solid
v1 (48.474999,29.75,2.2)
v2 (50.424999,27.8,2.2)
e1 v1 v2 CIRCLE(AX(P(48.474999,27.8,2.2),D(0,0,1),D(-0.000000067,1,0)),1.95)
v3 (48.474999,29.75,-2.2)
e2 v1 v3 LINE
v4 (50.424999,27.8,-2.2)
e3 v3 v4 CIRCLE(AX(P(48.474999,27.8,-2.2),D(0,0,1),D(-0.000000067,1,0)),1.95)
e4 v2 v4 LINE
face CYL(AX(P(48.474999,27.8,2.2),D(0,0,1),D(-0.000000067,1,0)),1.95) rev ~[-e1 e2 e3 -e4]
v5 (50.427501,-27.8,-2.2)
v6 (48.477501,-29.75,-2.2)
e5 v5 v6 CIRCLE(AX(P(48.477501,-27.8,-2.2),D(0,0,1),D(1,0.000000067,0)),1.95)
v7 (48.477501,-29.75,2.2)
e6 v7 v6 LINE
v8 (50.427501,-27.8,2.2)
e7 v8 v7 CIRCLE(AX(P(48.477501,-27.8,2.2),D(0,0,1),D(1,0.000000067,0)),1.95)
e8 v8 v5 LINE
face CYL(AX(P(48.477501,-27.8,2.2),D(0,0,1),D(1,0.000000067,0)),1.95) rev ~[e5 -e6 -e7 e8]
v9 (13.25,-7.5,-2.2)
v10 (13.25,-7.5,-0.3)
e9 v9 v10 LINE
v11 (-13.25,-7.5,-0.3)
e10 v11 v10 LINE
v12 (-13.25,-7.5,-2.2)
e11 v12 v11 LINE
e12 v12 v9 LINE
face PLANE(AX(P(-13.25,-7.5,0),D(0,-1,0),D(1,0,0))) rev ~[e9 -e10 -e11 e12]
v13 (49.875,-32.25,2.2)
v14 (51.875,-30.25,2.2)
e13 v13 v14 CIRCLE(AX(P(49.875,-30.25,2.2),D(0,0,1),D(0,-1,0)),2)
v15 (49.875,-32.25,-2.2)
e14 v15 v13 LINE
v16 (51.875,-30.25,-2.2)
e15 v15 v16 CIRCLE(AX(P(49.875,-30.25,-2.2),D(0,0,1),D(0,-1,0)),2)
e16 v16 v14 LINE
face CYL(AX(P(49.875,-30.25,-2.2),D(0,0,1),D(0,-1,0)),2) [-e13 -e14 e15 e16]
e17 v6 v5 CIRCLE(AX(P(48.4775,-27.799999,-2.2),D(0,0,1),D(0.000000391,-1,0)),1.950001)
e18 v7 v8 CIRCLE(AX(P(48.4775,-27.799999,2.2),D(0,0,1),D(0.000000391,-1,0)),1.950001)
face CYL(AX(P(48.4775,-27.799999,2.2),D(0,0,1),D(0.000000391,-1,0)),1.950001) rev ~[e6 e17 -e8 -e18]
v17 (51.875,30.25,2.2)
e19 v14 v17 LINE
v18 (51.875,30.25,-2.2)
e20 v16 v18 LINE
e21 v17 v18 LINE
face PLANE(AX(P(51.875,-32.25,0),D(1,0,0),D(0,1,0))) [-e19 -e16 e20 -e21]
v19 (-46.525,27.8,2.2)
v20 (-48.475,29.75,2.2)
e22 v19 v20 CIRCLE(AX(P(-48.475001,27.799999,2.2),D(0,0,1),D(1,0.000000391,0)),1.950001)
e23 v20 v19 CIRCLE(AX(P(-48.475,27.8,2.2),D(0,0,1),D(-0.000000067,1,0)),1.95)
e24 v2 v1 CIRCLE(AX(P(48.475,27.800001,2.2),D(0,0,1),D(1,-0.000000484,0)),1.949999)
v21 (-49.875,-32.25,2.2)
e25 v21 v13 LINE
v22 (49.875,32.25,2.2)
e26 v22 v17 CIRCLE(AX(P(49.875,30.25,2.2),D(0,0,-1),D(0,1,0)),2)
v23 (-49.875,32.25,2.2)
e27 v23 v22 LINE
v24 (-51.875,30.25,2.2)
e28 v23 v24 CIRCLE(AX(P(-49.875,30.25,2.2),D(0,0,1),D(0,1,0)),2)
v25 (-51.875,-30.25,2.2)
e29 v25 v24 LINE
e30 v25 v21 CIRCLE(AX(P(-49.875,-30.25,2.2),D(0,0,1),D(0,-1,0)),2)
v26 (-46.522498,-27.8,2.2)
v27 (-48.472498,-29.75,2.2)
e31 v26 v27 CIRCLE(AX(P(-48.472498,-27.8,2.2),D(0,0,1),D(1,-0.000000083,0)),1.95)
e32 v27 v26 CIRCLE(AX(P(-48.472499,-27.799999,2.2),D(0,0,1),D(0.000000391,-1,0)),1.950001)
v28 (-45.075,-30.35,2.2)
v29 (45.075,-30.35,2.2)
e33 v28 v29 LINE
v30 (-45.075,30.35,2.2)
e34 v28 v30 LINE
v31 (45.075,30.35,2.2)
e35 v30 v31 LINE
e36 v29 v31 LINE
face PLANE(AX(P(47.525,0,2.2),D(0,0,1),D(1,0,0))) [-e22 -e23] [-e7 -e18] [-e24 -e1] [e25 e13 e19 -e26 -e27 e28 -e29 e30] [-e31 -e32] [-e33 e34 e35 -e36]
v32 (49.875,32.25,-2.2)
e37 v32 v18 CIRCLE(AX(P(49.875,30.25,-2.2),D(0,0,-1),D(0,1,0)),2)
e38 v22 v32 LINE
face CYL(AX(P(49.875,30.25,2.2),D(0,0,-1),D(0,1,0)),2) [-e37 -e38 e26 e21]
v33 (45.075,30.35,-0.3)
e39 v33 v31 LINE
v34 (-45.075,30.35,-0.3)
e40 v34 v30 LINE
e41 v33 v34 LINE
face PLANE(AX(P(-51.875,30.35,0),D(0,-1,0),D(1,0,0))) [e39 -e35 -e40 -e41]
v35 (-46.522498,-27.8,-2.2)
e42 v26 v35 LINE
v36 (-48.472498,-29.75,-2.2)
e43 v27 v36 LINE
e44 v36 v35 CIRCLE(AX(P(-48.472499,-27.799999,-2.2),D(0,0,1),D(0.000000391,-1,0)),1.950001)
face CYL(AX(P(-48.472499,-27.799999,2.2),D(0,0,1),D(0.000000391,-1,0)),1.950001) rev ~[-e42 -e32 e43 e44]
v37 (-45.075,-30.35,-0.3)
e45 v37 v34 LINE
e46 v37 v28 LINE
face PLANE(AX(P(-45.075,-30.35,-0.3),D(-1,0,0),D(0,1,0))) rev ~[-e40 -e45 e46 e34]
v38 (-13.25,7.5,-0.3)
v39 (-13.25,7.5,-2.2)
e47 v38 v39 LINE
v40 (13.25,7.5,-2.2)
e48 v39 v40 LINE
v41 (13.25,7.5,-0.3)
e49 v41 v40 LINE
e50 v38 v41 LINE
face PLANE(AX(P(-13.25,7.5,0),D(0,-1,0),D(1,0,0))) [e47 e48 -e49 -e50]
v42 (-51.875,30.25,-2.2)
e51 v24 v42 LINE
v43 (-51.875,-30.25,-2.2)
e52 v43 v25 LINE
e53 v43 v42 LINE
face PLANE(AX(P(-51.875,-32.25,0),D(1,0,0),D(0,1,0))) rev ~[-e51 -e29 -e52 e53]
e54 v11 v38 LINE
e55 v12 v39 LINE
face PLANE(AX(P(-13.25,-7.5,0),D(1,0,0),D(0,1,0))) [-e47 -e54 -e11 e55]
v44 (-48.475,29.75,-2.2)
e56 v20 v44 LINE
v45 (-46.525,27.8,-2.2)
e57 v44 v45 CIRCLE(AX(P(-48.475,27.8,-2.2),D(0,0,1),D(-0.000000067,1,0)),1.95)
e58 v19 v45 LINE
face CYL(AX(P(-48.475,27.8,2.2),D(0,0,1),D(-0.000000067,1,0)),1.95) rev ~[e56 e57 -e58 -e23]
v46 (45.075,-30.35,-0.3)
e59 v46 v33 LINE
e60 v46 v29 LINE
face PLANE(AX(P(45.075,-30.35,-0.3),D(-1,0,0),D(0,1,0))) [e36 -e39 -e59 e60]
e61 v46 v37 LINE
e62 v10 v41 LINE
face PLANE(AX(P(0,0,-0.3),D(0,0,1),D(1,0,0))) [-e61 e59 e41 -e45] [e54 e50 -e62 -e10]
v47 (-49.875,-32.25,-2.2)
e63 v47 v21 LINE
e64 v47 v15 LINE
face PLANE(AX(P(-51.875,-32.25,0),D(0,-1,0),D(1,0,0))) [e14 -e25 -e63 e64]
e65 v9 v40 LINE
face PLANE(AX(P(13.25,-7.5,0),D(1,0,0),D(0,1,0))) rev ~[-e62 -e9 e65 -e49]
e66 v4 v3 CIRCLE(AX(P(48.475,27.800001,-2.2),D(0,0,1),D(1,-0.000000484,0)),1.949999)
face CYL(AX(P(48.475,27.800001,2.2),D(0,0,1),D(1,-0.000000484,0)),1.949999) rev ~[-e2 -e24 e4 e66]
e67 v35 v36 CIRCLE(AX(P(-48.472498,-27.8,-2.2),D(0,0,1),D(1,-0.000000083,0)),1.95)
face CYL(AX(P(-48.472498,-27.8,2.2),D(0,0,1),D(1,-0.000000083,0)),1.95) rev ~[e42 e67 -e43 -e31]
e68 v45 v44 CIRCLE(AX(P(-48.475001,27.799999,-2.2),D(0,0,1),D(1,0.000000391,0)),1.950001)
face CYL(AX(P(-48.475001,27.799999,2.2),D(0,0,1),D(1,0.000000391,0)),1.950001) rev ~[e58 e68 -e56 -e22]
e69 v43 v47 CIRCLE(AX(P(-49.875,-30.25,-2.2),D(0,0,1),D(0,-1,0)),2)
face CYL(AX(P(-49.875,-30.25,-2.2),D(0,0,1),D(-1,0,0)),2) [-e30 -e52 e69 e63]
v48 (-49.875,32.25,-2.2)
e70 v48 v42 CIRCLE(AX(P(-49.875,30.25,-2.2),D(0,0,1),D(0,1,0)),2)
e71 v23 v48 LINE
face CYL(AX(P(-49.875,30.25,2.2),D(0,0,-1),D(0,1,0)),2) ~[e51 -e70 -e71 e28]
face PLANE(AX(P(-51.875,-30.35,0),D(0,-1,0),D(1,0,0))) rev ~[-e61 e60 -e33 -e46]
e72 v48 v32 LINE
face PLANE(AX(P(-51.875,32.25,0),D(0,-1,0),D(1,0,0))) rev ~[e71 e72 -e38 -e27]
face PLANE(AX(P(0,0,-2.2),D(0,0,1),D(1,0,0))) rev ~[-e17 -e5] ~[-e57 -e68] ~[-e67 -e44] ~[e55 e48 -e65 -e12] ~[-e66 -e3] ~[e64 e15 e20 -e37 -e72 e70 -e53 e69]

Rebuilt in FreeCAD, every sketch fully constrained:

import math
import FreeCAD as App
import Part
import Sketcher

V = App.Vector


def edges_at(feature, points):
    """Names of the edges that pass closest to the given points."""
    edges = feature.Shape.Edges
    near = lambda p: min(range(len(edges)), key=lambda i: edges[i].distToShape(Part.Vertex(*p))[0])
    return sorted({f"Edge{near(p) + 1}" for p in points})


def faces_at(feature, points):
    """Names of the faces that lie closest to the given points."""
    faces = feature.Shape.Faces
    near = lambda p: min(range(len(faces)), key=lambda i: faces[i].distToShape(Part.Vertex(*p))[0])
    return sorted({f"Face{near(p) + 1}" for p in points})


def add_polygon(sketch, points):
    """Adds a closed chain of lines whose ends are joined by coincident constraints."""
    first, n = sketch.GeometryCount, len(points)
    for a, b in zip(points, points[1:] + points[:1]):
        sketch.addGeometry(Part.LineSegment(App.Vector(*a, 0), App.Vector(*b, 0)), False)
    for i in range(n):
        sketch.addConstraint(Sketcher.Constraint("Coincident", first + i, 2, first + (i + 1) % n, 1))

doc = App.newDocument("Part")
body = doc.addObject("PartDesign::Body", "Body")

# Sketch on XY plane
sketch1 = body.newObject("Sketcher::SketchObject", "Sketch")
sketch1.AttachmentSupport = (doc.getObject("XY_Plane"), [""])
sketch1.MapMode = "FlatFace"
add_polygon(sketch1, [(-51.875, 32.25), (-51.875, -32.25), (51.875, -32.25), (51.875, 32.25)])  # lines 0-3
sketch1.addConstraint([
    Sketcher.Constraint("Vertical", 0),
    Sketcher.Constraint("Horizontal", 1),
    Sketcher.Constraint("Vertical", 2),
    Sketcher.Constraint("Horizontal", 3),
    Sketcher.Constraint("Symmetric", 0, 2, 2, 2, -1, 1),
    Sketcher.Constraint("DistanceY", 0, 2, 0, 1, 64.5),
    Sketcher.Constraint("DistanceX", 1, 1, 1, 2, 103.75),
])
pad1 = body.newObject("PartDesign::Pad", "Pad")
pad1.Profile = sketch1
pad1.Length = 4.4
pad1.Midplane = True
doc.recompute()

thickness = body.newObject("PartDesign::Thickness", "Thickness")
thickness.Base = (pad1, faces_at(pad1, [(0, 0, 2.2)]))
thickness.Value = 1.9
thickness.Reversed = True
thickness.Join = "Arc"

# Sketch on XY plane
sketch2 = body.newObject("Sketcher::SketchObject", "Sketch001")
sketch2.AttachmentSupport = (doc.getObject("XY_Plane"), [""])
sketch2.MapMode = "FlatFace"
add_polygon(sketch2, [(-13.25, 7.5), (-13.25, -7.5), (13.25, -7.5), (13.25, 7.5)])  # lines 0-3
sketch2.addConstraint([
    Sketcher.Constraint("Vertical", 0),
    Sketcher.Constraint("Horizontal", 1),
    Sketcher.Constraint("Vertical", 2),
    Sketcher.Constraint("Horizontal", 3),
    Sketcher.Constraint("Symmetric", 0, 2, 2, 2, -1, 1),
    Sketcher.Constraint("DistanceY", 0, 2, 0, 1, 15.0),
    Sketcher.Constraint("DistanceX", 1, 1, 1, 2, 26.5),
])
pocket1 = body.newObject("PartDesign::Pocket", "Pocket")
pocket1.Profile = sketch2
pocket1.Length = 25.4
pocket1.Midplane = True
doc.recompute()

fillet = body.newObject("PartDesign::Fillet", "Fillet")
fillet.Base = (pocket1, edges_at(pocket1, [(-51.875, 32.25, 0)]))
fillet.Radius = 2
doc.recompute()

fillet2 = body.newObject("PartDesign::Fillet", "Fillet001")
fillet2.Base = (fillet, edges_at(fillet, [(-51.875, -32.25, 0), (51.875, -32.25, 0), (51.875, 32.25, 0)]))
fillet2.Radius = 2

# Sketch on XY plane
sketch3 = body.newObject("Sketcher::SketchObject", "Sketch002")
sketch3.AttachmentSupport = (doc.getObject("XY_Plane"), [""])
sketch3.MapMode = "FlatFace"
sketch3.AttachmentOffset = App.Placement(V(0, 0, -0.3), App.Rotation())
add_polygon(sketch3, [(-49.975, 30.35), (-49.975, -30.35), (-45.075, -30.35), (-45.075, 30.35)])  # lines 0-3
sketch3.addConstraint([
    Sketcher.Constraint("Vertical", 0),
    Sketcher.Constraint("Horizontal", 1),
    Sketcher.Constraint("Vertical", 2),
    Sketcher.Constraint("Horizontal", 3),
    Sketcher.Constraint("DistanceX", 1, 1, 1, 2, 4.9),
    Sketcher.Constraint("DistanceY", 0, 2, 0, 1, 60.7),
    Sketcher.Constraint("DistanceY", 0, 2, -1, 1, 30.35),
    Sketcher.Constraint("DistanceX", 0, 2, -1, 1, 49.975),
])
pad2 = body.newObject("PartDesign::Pad", "Pad001")
pad2.Profile = sketch3
pad2.Length = 2.5

# Sketch on XY plane
sketch4 = body.newObject("Sketcher::SketchObject", "Sketch003")
sketch4.AttachmentSupport = (doc.getObject("XY_Plane"), [""])
sketch4.MapMode = "FlatFace"
sketch4.AttachmentOffset = App.Placement(V(0, 0, -0.3), App.Rotation())
add_polygon(sketch4, [(45.075, 30.35), (45.075, -30.35), (49.975, -30.35), (49.975, 30.35)])  # lines 0-3
sketch4.addConstraint([
    Sketcher.Constraint("Vertical", 0),
    Sketcher.Constraint("Horizontal", 1),
    Sketcher.Constraint("Vertical", 2),
    Sketcher.Constraint("Horizontal", 3),
    Sketcher.Constraint("DistanceX", 1, 1, 1, 2, 4.9),
    Sketcher.Constraint("DistanceY", 0, 2, 0, 1, 60.7),
    Sketcher.Constraint("DistanceY", 0, 2, -1, 1, 30.35),
    Sketcher.Constraint("DistanceX", -1, 1, 0, 2, 45.075),
])
pad3 = body.newObject("PartDesign::Pad", "Pad002")
pad3.Profile = sketch4
pad3.Length = 2.5

# Sketch on XY plane
sketch5 = body.newObject("Sketcher::SketchObject", "Sketch004")
sketch5.AttachmentSupport = (doc.getObject("XY_Plane"), [""])
sketch5.MapMode = "FlatFace"
sketch5.AttachmentOffset = App.Placement(V(0, 0, 2.2), App.Rotation())
sketch5.addGeometry([
    Part.ArcOfCircle(Part.Circle(V(-48.475, 27.8, 0), V(0, 0, 1), 1.95), math.radians(90.000004), math.radians(359.999996)),  # 0
    Part.ArcOfCircle(Part.Circle(V(-48.475001, 27.799999, 0), V(0, 0, 1), 1.950001), math.radians(0.000022), math.radians(89.999978)),  # 1
    Part.ArcOfCircle(Part.Circle(V(48.474999, 27.8, 0), V(0, 0, 1), 1.95), math.radians(90.000004), math.radians(359.999996)),  # 2
    Part.ArcOfCircle(Part.Circle(V(48.475, 27.800001, 0), V(0, 0, 1), 1.949999), math.radians(-0.000028), math.radians(90.000028)),  # 3
    Part.ArcOfCircle(Part.Circle(V(-48.472499, -27.799999, 0), V(0, 0, 1), 1.950001), math.radians(-89.999978), math.radians(-0.000022)),  # 4
    Part.ArcOfCircle(Part.Circle(V(-48.472498, -27.8, 0), V(0, 0, 1), 1.95), math.radians(-0.000005), math.radians(270.000005)),  # 5
    Part.ArcOfCircle(Part.Circle(V(48.4775, -27.799999, 0), V(0, 0, 1), 1.950001), math.radians(-89.999978), math.radians(-0.000022)),  # 6
    Part.ArcOfCircle(Part.Circle(V(48.477501, -27.8, 0), V(0, 0, 1), 1.95), math.radians(0.000004), math.radians(269.999996)),  # 7
], False)
sketch5.addConstraint([
    Sketcher.Constraint("Tangent", 0, 1, 1, 2),
    Sketcher.Constraint("Coincident", 1, 1, 0, 2),
    Sketcher.Constraint("Tangent", 2, 1, 3, 2),
    Sketcher.Constraint("Coincident", 3, 1, 2, 2),
    Sketcher.Constraint("Tangent", 4, 1, 5, 2),
    Sketcher.Constraint("Coincident", 5, 1, 4, 2),
    Sketcher.Constraint("Tangent", 6, 1, 7, 2),
    Sketcher.Constraint("Coincident", 7, 1, 6, 2),
    Sketcher.Constraint("Equal", 1, 2),
    Sketcher.Constraint("Equal", 3, 4),
    Sketcher.Constraint("Equal", 5, 6),
    Sketcher.Constraint("Symmetric", 0, 3, 2, 3, -2),
    Sketcher.Constraint("Horizontal", 5, 3, 6, 3),
    Sketcher.Constraint("Horizontal", 3, 3, 1, 1),
    Sketcher.Constraint("Horizontal", 1, 1, 3, 1),
    Sketcher.Constraint("Horizontal", 7, 3, 5, 1),
    Sketcher.Constraint("Horizontal", 5, 1, 7, 1),
    Sketcher.Constraint("Vertical", 1, 3, 0, 1),
    Sketcher.Constraint("Vertical", 3, 3, 2, 1),
    Sketcher.Constraint("Vertical", 5, 3, 4, 1),
    Sketcher.Constraint("Vertical", 7, 3, 6, 1),
    Sketcher.Constraint("Radius", 0, 1.95),
    Sketcher.Constraint("DistanceX", 1, 1, 2, 1, 94.999999),
    Sketcher.Constraint("DistanceY", -1, 1, 0, 3, 27.8),
    Sketcher.Constraint("DistanceY", 4, 3, -1, 1, 27.799999),
    Sketcher.Constraint("DistanceX", 5, 3, 6, 3, 96.949998),
    Sketcher.Constraint("DistanceX", 4, 3, -1, 1, 48.472499),
])
pocket2 = body.newObject("PartDesign::Pocket", "Pocket001")
pocket2.Profile = sketch5
pocket2.Length = 4.4

doc.recompute()
